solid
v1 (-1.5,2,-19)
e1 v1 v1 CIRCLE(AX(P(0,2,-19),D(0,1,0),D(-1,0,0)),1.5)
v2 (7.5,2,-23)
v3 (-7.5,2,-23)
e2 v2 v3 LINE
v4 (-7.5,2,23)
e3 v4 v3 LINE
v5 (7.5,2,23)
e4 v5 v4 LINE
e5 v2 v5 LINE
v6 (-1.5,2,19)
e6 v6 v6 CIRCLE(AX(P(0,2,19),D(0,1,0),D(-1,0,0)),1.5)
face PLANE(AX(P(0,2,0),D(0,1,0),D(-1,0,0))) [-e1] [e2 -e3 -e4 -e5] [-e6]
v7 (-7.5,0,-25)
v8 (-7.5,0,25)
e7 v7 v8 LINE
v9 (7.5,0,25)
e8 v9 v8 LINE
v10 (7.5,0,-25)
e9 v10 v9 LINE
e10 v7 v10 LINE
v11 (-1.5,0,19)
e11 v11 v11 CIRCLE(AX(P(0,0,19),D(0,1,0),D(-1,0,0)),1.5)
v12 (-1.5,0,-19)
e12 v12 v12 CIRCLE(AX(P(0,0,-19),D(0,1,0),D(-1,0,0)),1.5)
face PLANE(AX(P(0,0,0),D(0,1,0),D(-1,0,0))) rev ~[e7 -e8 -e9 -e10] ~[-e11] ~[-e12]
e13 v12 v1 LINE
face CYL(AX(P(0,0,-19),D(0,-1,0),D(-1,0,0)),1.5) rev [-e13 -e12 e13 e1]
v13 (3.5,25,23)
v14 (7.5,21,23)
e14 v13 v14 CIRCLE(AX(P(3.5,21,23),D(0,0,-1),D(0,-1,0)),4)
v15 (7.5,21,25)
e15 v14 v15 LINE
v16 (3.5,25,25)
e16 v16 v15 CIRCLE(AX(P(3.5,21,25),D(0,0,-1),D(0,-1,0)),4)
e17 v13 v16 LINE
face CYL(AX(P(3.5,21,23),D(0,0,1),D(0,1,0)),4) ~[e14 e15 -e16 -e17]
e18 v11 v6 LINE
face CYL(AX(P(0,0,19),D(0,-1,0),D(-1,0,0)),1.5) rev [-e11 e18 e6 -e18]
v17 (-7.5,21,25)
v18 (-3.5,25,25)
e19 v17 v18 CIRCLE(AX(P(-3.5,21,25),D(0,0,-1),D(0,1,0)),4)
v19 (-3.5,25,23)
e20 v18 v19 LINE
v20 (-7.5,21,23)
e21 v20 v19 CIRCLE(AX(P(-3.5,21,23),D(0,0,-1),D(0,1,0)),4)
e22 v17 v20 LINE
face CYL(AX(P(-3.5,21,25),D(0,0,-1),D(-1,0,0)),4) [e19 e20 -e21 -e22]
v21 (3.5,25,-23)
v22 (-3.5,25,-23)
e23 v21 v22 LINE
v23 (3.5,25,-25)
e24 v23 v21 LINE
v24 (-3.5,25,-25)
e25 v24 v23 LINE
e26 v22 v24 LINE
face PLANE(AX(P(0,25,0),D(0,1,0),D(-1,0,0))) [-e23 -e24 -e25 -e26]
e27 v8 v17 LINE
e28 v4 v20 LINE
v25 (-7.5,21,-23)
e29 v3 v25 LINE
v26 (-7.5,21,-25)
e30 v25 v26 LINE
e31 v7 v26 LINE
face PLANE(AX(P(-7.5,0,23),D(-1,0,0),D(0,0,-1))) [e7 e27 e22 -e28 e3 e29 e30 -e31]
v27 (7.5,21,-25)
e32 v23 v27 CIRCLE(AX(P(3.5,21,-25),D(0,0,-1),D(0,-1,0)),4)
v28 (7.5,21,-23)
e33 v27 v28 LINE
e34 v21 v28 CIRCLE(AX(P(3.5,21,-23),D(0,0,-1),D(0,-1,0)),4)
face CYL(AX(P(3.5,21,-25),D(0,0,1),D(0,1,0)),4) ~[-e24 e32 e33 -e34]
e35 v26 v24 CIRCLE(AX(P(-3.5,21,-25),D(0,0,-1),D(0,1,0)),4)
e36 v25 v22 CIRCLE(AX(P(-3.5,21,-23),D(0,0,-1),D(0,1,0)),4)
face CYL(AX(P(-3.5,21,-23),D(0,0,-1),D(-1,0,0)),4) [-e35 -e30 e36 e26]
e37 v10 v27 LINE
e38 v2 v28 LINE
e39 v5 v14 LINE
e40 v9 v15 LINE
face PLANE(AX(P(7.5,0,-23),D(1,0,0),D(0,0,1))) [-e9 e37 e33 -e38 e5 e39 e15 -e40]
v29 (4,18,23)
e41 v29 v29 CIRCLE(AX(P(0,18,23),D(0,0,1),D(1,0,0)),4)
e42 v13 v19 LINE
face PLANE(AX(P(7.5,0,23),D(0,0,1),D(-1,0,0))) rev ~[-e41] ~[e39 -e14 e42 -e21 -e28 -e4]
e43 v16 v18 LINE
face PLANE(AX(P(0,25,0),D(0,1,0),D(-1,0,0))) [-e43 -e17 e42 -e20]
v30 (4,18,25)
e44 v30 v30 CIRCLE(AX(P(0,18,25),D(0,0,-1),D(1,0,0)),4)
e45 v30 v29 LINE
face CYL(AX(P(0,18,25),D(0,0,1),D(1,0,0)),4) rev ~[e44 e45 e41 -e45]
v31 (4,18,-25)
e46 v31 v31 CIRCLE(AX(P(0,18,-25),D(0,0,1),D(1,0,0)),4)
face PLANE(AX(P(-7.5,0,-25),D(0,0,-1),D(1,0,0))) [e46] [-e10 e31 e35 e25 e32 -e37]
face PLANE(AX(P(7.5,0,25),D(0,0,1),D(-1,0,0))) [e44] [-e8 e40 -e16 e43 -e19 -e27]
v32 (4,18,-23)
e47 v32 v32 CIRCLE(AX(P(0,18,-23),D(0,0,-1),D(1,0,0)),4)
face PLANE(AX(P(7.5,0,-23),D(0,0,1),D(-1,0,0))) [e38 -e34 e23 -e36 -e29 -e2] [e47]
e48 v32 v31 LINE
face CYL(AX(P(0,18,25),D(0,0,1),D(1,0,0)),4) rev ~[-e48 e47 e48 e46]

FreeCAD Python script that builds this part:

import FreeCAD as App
import Part
import Sketcher


def edges_at(feature, points):
    """Names of the edges that pass closest to the given points."""
    edges = feature.Shape.Edges
    near = lambda p: min(range(len(edges)), key=lambda i: edges[i].distToShape(Part.Vertex(*p))[0])
    return sorted({f"Edge{near(p) + 1}" for p in points})


def add_polygon(sketch, points):
    """Adds a closed chain of lines whose ends are joined by coincident constraints."""
    first, n = sketch.GeometryCount, len(points)
    for a, b in zip(points, points[1:] + points[:1]):
        sketch.addGeometry(Part.LineSegment(App.Vector(*a, 0), App.Vector(*b, 0)), False)
    for i in range(n):
        sketch.addConstraint(Sketcher.Constraint("Coincident", first + i, 2, first + (i + 1) % n, 1))

doc = App.newDocument("Part")
body = doc.addObject("PartDesign::Body", "Body")

# Sketch on XZ plane
sketch1 = doc.addObject("Sketcher::SketchObject", "Sketch")
body.addObject(sketch1)
sketch1.AttachmentSupport = (doc.XZ_Plane, [""])
sketch1.MapMode = "FlatFace"
add_polygon(sketch1, [(-7.5, 23), (7.5, 23), (7.5, -23), (-7.5, -23)])  # lines 0-3
sketch1.addGeometry(Part.Circle(App.Vector(0, -19, 0), App.Vector(0, 0, 1), 1.5), False)  # 4
sketch1.addGeometry(Part.Circle(App.Vector(0, 19, 0), App.Vector(0, 0, 1), 1.5), False)  # 5
sketch1.addConstraint(Sketcher.Constraint("Horizontal", 0))
sketch1.addConstraint(Sketcher.Constraint("Vertical", 1))
sketch1.addConstraint(Sketcher.Constraint("Horizontal", 2))
sketch1.addConstraint(Sketcher.Constraint("Vertical", 3))
sketch1.addConstraint(Sketcher.Constraint("Equal", 4, 5))
sketch1.addConstraint(Sketcher.Constraint("Symmetric", 4, 3, 5, 3, -1, 1))
sketch1.addConstraint(Sketcher.Constraint("Symmetric", 0, 2, 2, 2, -1, 1))
sketch1.addConstraint(Sketcher.Constraint("PointOnObject", 4, 3, -2))
sketch1.addConstraint(Sketcher.Constraint("Diameter", 4, 3.0))
sketch1.addConstraint(Sketcher.Constraint("DistanceX", 0, 1, 0, 2, 15.0))
sketch1.addConstraint(Sketcher.Constraint("DistanceY", 4, 3, 5, 3, 38.0))
sketch1.addConstraint(Sketcher.Constraint("DistanceY", 1, 2, 1, 1, 46.0))
pad1 = doc.addObject("PartDesign::Pad", "Pad")
body.addObject(pad1)
pad1.Profile = sketch1
pad1.Length = 2
pad1.Reversed = True

# Sketch on XZ plane
sketch2 = doc.addObject("Sketcher::SketchObject", "Sketch001")
body.addObject(sketch2)
sketch2.AttachmentSupport = (doc.XZ_Plane, [""])
sketch2.MapMode = "FlatFace"
add_polygon(sketch2, [(-7.5, 25), (7.5, 25), (7.5, 23), (-7.5, 23)])  # lines 0-3
add_polygon(sketch2, [(-7.5, -23), (7.5, -23), (7.5, -25), (-7.5, -25)])  # lines 4-7
sketch2.addConstraint(Sketcher.Constraint("Horizontal", 0))
sketch2.addConstraint(Sketcher.Constraint("Vertical", 1))
sketch2.addConstraint(Sketcher.Constraint("Horizontal", 2))
sketch2.addConstraint(Sketcher.Constraint("Vertical", 3))
sketch2.addConstraint(Sketcher.Constraint("Horizontal", 4))
sketch2.addConstraint(Sketcher.Constraint("Vertical", 5))
sketch2.addConstraint(Sketcher.Constraint("Horizontal", 6))
sketch2.addConstraint(Sketcher.Constraint("Vertical", 7))
sketch2.addConstraint(Sketcher.Constraint("Symmetric", 2, 2, 4, 2, -1, 1))
sketch2.addConstraint(Sketcher.Constraint("Symmetric", 0, 2, 6, 2, -1, 1))
sketch2.addConstraint(Sketcher.Constraint("Vertical", 1, 2, 4, 2))
sketch2.addConstraint(Sketcher.Constraint("DistanceX", 0, 1, 0, 2, 15.0))
sketch2.addConstraint(Sketcher.Constraint("DistanceY", 1, 2, 1, 1, 2.0))
sketch2.addConstraint(Sketcher.Constraint("DistanceY", 5, 2, 0, 2, 50.0))
pad2 = doc.addObject("PartDesign::Pad", "Pad001")
body.addObject(pad2)
pad2.Profile = sketch2
pad2.Length = 25
pad2.Reversed = True

# Sketch on XY plane
sketch3 = doc.addObject("Sketcher::SketchObject", "Sketch002")
body.addObject(sketch3)
sketch3.AttachmentSupport = (doc.XY_Plane, [""])
sketch3.MapMode = "FlatFace"
sketch3.AttachmentOffset = App.Placement(App.Vector(0, 0, 25), App.Rotation())
sketch3.addGeometry(Part.Circle(App.Vector(0, 18, 0), App.Vector(0, 0, 1), 4), False)
sketch3.addConstraint(Sketcher.Constraint("PointOnObject", 0, 3, -2))
sketch3.addConstraint(Sketcher.Constraint("Diameter", 0, 8.0))
sketch3.addConstraint(Sketcher.Constraint("DistanceY", -1, 1, 0, 3, 18.0))
pocket1 = doc.addObject("PartDesign::Pocket", "Pocket")
body.addObject(pocket1)
pocket1.Profile = sketch3
pocket1.Length = 50
doc.recompute()

fillet = doc.addObject("PartDesign::Fillet", "Fillet")
body.addObject(fillet)
fillet.Base = (pocket1, edges_at(pocket1, [
    (-7.5, 25, -24),
    (7.5, 25, -24),
    (-7.5, 25, 24),
    (7.5, 25, 24),
]))
fillet.Radius = 4

doc.recompute()
